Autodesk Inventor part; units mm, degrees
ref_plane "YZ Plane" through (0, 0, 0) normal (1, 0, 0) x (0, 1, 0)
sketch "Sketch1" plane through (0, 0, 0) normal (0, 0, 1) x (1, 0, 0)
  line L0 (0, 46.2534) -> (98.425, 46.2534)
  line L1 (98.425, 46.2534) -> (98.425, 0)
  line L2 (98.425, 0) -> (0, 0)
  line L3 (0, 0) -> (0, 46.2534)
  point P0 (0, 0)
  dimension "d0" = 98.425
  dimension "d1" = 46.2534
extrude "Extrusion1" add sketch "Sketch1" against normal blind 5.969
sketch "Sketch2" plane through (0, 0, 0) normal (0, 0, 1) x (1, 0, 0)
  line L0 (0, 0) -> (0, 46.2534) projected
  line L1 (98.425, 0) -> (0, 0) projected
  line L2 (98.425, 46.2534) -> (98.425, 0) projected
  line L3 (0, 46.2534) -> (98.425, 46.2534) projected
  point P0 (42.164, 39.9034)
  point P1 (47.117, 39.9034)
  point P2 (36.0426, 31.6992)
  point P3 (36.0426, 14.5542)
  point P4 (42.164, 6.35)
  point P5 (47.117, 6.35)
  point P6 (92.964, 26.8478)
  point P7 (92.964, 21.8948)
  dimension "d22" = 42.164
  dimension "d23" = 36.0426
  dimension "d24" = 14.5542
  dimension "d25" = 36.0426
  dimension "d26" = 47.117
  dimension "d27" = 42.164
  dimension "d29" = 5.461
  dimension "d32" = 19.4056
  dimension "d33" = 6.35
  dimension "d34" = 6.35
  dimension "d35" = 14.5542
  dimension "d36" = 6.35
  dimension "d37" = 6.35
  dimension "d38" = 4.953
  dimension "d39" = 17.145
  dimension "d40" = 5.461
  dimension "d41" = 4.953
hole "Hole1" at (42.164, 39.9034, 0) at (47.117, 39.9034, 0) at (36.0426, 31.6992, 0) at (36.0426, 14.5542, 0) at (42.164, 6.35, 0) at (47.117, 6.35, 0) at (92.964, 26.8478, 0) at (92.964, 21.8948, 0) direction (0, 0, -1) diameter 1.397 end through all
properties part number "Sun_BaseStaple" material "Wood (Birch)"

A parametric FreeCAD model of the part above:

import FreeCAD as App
import Part
import Sketcher
Q = App.Units.Quantity

doc = App.newDocument("Part")
body = doc.addObject("PartDesign::Body", "Body")

sketch1 = body.newObject("Sketcher::SketchObject", "Sketch")
sketch1.AttachmentSupport = (doc.getObject("XY_Plane"), [""])
sketch1.MapMode = "FlatFace"
sketch1.addGeometry([
    Part.LineSegment(App.Vector(98, 46, 0), App.Vector(0, 46, 0)),
    Part.LineSegment(App.Vector(0, 46, 0), App.Vector(0, 0, 0)),
    Part.LineSegment(App.Vector(0, 0, 0), App.Vector(98, 0, 0)),
    Part.LineSegment(App.Vector(98, 0, 0), App.Vector(98, 46, 0)),
], False)
sketch1.addConstraint([
    Sketcher.Constraint("Coincident", 0, 2, 1, 1),
    Sketcher.Constraint("Coincident", 1, 2, 2, 1),
    Sketcher.Constraint("Coincident", 2, 2, 3, 1),
    Sketcher.Constraint("Coincident", 3, 2, 0, 1),
    Sketcher.Constraint("Horizontal", 0),
    Sketcher.Constraint("Vertical", 1),
    Sketcher.Constraint("Horizontal", 2),
    Sketcher.Constraint("Vertical", 3),
    Sketcher.Constraint("Coincident", 1, 2, -1, 1),
    Sketcher.Constraint("DistanceX", 0, 2, 0, 1, Q("3.875 in")),
    Sketcher.Constraint("DistanceY", 1, 2, 1, 1, Q("1.821 in")),
])
pad1 = body.newObject("PartDesign::Pad", "Pad")
pad1.Profile = sketch1
pad1.Length = Q("0.235 in")
pad1.Reversed = True

sketch2 = body.newObject("Sketcher::SketchObject", "Sketch001")
sketch2.AttachmentSupport = (doc.getObject("XY_Plane"), [""])
sketch2.MapMode = "FlatFace"
sketch2.addGeometry([
    Part.Circle(App.Vector(42.2, 39.9, 0), App.Vector(0, 0, 1), 0.7),
    Part.Circle(App.Vector(47.1, 39.9, 0), App.Vector(0, 0, 1), 0.7),
    Part.Circle(App.Vector(36, 31.7, 0), App.Vector(0, 0, 1), 0.7),
    Part.Circle(App.Vector(36, 14.6, 0), App.Vector(0, 0, 1), 0.7),
    Part.Circle(App.Vector(42.2, 6.3, 0), App.Vector(0, 0, 1), 0.7),
    Part.Circle(App.Vector(47.1, 6.3, 0), App.Vector(0, 0, 1), 0.7),
    Part.Circle(App.Vector(93, 26.8, 0), App.Vector(0, 0, 1), 0.7),
    Part.Circle(App.Vector(93, 21.9, 0), App.Vector(0, 0, 1), 0.7),
], False)
sketch2.addConstraint([
    Sketcher.Constraint("Equal", 0, 1),
    Sketcher.Constraint("Equal", 1, 2),
    Sketcher.Constraint("Equal", 2, 3),
    Sketcher.Constraint("Equal", 3, 4),
    Sketcher.Constraint("Equal", 4, 5),
    Sketcher.Constraint("Equal", 5, 6),
    Sketcher.Constraint("Equal", 6, 7),
    Sketcher.Constraint("Horizontal", 0, 3, 1, 3),
    Sketcher.Constraint("Horizontal", 4, 3, 5, 3),
    Sketcher.Constraint("Vertical", 2, 3, 3, 3),
    Sketcher.Constraint("Vertical", 0, 3, 4, 3),
    Sketcher.Constraint("Vertical", 1, 3, 5, 3),
    Sketcher.Constraint("Vertical", 6, 3, 7, 3),
    Sketcher.Constraint("Diameter", 0, Q("0.055 in")),
    Sketcher.Constraint("DistanceX", 0, 3, 6, 3, Q("2 in")),
    Sketcher.Constraint("DistanceX", -1, 1, 0, 3, Q("1.66 in")),
    Sketcher.Constraint("DistanceY", -1, 1, 4, 3, Q("0.25 in")),
    Sketcher.Constraint("DistanceY", -1, 1, 0, 3, Q("1.571 in")),
    Sketcher.Constraint("DistanceX", -1, 1, 1, 3, Q("1.855 in")),
    Sketcher.Constraint("DistanceX", -1, 1, 2, 3, Q("1.419 in")),
    Sketcher.Constraint("DistanceY", -1, 1, 2, 3, Q("1.248 in")),
    Sketcher.Constraint("DistanceY", -1, 1, 3, 3, Q("0.573 in")),
    Sketcher.Constraint("DistanceY", -1, 1, 6, 3, Q("1.057 in")),
    Sketcher.Constraint("DistanceY", -1, 1, 7, 3, Q("0.862 in")),
])
doc.recompute()
hole = body.newObject("PartDesign::Hole", "Hole")
hole.Profile = sketch2
hole.ThreadType = "None"
hole.Diameter = Q("0.055 in")
hole.DepthType = "ThroughAll"

doc.recompute()
